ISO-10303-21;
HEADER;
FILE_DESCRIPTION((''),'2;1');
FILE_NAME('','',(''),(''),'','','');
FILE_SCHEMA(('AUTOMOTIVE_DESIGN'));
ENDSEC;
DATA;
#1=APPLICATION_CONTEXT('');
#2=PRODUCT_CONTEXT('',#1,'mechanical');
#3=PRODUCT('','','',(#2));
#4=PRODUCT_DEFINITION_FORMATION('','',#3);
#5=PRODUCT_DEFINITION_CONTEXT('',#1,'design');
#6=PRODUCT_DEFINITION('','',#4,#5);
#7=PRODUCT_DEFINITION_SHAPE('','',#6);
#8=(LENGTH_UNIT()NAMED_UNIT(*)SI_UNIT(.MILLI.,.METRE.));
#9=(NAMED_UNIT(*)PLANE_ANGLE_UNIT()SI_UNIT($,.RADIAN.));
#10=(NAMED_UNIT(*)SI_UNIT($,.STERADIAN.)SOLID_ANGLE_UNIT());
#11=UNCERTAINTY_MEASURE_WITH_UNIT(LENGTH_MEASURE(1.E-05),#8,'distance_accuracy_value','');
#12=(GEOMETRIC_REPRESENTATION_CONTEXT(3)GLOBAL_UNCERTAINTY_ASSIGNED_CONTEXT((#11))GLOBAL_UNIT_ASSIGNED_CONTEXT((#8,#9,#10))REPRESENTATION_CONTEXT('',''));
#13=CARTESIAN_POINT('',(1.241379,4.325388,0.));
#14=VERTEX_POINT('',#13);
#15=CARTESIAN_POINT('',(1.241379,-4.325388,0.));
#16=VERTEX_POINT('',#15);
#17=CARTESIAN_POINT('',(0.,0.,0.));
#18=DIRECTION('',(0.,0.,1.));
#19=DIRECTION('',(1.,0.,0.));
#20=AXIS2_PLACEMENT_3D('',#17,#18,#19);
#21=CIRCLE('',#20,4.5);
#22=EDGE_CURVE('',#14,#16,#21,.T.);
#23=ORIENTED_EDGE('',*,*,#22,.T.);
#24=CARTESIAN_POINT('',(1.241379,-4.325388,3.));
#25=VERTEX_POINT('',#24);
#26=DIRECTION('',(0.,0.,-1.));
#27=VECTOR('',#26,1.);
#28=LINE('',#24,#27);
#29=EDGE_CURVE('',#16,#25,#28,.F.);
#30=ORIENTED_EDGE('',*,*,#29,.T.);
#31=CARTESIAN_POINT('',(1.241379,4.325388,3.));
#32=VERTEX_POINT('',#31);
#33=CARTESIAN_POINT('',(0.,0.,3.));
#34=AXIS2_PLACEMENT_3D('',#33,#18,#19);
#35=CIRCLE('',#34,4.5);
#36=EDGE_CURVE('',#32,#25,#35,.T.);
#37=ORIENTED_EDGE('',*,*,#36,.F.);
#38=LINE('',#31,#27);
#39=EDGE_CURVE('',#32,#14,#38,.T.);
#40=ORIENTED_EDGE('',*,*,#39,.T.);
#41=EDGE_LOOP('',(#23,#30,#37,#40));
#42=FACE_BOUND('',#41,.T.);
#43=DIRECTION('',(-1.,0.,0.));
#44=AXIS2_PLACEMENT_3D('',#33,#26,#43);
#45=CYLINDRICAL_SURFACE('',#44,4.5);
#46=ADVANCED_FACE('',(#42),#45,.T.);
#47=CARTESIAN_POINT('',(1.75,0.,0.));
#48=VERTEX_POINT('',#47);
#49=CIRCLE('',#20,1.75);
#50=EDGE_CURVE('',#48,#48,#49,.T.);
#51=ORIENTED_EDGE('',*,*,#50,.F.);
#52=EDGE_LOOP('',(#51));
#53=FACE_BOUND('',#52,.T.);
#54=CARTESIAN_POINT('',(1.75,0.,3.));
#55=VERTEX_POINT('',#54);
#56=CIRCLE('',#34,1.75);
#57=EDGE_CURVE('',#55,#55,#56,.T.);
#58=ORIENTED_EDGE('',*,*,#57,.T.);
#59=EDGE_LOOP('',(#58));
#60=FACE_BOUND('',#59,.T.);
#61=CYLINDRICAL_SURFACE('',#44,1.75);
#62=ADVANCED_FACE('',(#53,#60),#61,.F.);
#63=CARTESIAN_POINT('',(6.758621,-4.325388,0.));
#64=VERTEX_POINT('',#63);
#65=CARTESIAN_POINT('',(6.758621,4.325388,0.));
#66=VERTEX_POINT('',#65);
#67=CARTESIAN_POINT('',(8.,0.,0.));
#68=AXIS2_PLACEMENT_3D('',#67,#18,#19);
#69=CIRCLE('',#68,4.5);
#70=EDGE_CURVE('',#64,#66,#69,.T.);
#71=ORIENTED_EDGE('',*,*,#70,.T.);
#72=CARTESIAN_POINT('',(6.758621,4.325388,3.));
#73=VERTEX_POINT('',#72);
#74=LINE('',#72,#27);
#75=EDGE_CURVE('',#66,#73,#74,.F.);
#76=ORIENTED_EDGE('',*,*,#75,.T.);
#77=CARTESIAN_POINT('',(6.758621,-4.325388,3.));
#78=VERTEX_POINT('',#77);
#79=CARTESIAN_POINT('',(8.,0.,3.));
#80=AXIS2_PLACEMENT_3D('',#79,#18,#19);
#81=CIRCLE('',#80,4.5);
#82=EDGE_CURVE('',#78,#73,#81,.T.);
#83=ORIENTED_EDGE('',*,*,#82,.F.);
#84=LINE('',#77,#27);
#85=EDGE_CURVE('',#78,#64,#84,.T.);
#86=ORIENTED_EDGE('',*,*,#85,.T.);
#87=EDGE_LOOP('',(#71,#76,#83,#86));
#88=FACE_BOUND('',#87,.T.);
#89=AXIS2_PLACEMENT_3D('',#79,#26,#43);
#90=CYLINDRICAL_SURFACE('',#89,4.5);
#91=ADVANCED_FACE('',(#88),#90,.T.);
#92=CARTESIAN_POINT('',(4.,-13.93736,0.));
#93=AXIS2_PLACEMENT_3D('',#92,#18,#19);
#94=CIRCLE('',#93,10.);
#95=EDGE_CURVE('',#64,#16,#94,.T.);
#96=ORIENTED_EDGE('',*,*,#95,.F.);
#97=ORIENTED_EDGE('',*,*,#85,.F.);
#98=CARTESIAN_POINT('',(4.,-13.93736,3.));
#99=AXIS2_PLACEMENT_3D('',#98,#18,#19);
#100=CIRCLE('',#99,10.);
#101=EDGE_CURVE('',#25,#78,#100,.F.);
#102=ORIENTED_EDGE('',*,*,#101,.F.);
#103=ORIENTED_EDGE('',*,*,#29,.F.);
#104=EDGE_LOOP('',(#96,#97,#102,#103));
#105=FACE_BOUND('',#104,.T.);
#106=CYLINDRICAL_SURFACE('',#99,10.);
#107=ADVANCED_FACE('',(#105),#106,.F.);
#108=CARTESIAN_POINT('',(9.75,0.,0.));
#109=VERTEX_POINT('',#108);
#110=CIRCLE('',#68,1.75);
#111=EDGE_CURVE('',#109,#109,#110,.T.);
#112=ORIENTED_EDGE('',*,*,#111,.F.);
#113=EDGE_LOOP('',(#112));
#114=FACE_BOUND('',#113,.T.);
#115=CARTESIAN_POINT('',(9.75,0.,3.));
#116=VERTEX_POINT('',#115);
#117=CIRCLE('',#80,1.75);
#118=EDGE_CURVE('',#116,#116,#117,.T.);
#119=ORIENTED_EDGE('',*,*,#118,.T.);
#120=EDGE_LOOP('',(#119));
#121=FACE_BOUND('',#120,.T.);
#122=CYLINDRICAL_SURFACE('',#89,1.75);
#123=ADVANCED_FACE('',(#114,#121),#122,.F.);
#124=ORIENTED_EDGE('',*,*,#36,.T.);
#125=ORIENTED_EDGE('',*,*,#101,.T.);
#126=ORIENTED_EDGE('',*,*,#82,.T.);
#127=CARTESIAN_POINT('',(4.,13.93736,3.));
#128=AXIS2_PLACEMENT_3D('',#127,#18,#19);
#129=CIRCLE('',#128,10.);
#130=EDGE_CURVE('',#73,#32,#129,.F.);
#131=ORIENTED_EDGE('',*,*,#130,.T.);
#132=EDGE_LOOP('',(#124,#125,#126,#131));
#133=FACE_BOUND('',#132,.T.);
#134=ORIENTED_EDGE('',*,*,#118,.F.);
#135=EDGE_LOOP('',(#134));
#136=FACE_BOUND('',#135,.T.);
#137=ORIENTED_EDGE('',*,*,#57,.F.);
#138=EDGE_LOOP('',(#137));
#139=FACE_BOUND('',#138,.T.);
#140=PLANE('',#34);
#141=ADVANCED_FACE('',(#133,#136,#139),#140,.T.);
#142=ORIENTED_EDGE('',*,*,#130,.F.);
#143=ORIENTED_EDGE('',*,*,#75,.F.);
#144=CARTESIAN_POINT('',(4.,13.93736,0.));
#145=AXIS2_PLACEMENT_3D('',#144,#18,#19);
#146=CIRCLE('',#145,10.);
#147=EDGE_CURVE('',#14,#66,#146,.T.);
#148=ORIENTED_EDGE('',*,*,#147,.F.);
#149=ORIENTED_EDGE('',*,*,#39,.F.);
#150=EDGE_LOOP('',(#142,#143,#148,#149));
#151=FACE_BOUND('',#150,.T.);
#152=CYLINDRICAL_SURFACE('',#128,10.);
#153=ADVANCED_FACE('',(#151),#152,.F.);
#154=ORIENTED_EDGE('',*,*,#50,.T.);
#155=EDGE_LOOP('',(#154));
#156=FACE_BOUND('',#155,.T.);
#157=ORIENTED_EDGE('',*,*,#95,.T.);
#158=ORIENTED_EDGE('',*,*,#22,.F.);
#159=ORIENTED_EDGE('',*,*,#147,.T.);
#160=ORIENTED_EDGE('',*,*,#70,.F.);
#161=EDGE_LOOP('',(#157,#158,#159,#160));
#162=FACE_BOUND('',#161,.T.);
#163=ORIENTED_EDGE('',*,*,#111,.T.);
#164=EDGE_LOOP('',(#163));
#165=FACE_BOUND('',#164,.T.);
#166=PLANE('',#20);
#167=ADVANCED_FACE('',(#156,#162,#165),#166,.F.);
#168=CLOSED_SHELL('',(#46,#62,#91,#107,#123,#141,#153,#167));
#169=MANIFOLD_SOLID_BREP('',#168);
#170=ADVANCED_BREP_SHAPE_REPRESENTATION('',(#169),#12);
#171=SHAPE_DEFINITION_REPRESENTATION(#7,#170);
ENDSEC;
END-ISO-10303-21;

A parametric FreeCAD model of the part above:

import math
import FreeCAD as App
import Part
import Sketcher

V = App.Vector


def edges_at(feature, points):
    """Names of the edges that pass closest to the given points."""
    edges = feature.Shape.Edges
    near = lambda p: min(range(len(edges)), key=lambda i: edges[i].distToShape(Part.Vertex(*p))[0])
    return sorted({f"Edge{near(p) + 1}" for p in points})

doc = App.newDocument("Part")
params = doc.addObject("Spreadsheet::Sheet", "Params")
for row, (alias, value) in enumerate([
    ("sketch1_diameter", "3.5 mm"),
    ("sketch1_radius", "4.5 mm"),
    ("pad1_length", "3 mm"),
    ("fillet_radius", "10 mm"),
], start=1):
    params.set(f"A{row}", alias)
    params.set(f"B{row}", "=" + value)
    params.setAlias(f"B{row}", alias)

body = doc.addObject("PartDesign::Body", "Body")

sketch1 = body.newObject("Sketcher::SketchObject", "Sketch")
sketch1.AttachmentSupport = (doc.getObject("XY_Plane"), [""])
sketch1.MapMode = "FlatFace"
sketch1.addGeometry([
    Part.ArcOfCircle(Part.Circle(V(8, 0, 0), V(0, 0, 1), 4.5), math.radians(-153), math.radians(153)),
    Part.ArcOfCircle(Part.Circle(V(0, 0, 0), V(0, 0, 1), 4.5), math.radians(27), math.radians(333)),
    Part.Circle(V(8, 0, 0), V(0, 0, 1), 1.8),
    Part.Circle(V(0, 0, 0), V(0, 0, 1), 1.8),
], False)
sketch1.addConstraint([
    Sketcher.Constraint("Coincident", 0, 1, 1, 2),
    Sketcher.Constraint("Coincident", 1, 1, 0, 2),
    Sketcher.Constraint("Coincident", 1, 3, -1, 1),
    Sketcher.Constraint("Coincident", 3, 3, -1, 1),
    Sketcher.Constraint("Coincident", 2, 3, 0, 3),
    Sketcher.Constraint("Equal", 0, 1),
    Sketcher.Constraint("Equal", 2, 3),
    Sketcher.Constraint("PointOnObject", 0, 3, -1),
    Sketcher.Constraint("Diameter", 2, 3.5),
    Sketcher.Constraint("Radius", 0, 4.5),
    Sketcher.Constraint("DistanceX", -1, 1, 0, 3, 8.0),
])
sketch1.setExpression("Constraints[8]", "Params.sketch1_diameter")
sketch1.setExpression("Constraints[9]", "Params.sketch1_radius")
pad1 = body.newObject("PartDesign::Pad", "Pad")
pad1.Profile = sketch1
pad1.setExpression("Length", "Params.pad1_length")
doc.recompute()

fillet = body.newObject("PartDesign::Fillet", "Fillet")
fillet.Base = (pad1, edges_at(pad1, [(4, 2.062, 1.5), (4, -2.062, 1.5)]))
fillet.setExpression("Radius", "Params.fillet_radius")

doc.recompute()
